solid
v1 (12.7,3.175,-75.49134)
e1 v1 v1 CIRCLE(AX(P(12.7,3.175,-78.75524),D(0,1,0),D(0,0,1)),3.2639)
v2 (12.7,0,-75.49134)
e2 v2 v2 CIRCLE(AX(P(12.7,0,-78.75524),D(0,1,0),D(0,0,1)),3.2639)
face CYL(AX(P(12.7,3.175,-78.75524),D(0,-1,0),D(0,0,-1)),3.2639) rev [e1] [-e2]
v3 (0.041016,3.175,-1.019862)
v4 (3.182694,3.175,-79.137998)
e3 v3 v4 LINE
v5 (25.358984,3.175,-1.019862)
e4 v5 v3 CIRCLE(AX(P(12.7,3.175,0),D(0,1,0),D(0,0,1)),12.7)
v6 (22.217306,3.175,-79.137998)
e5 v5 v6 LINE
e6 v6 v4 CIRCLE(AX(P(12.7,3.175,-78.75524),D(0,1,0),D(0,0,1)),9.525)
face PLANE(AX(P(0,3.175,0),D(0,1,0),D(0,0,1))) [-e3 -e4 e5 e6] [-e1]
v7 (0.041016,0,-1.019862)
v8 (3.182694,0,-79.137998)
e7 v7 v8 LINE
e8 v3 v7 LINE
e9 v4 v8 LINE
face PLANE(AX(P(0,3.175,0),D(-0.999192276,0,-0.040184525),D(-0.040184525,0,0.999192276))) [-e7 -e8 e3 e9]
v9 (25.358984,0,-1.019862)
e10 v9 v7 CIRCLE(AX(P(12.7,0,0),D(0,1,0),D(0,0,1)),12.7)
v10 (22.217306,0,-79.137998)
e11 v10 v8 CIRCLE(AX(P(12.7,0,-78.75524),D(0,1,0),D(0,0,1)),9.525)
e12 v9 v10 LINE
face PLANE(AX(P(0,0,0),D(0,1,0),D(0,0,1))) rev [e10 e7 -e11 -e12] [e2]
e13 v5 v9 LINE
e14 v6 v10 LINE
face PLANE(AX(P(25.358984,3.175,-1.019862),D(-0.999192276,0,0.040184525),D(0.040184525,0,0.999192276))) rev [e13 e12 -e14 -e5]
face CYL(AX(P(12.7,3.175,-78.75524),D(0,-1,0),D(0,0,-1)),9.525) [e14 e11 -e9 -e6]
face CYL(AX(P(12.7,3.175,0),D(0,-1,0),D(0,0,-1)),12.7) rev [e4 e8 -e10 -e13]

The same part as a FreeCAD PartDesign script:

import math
import FreeCAD as App
import Part
import Sketcher
Q = App.Units.Quantity

doc = App.newDocument("Part")
body = doc.addObject("PartDesign::Body", "Body")

sketch1 = body.newObject("Sketcher::SketchObject", "Sketch")
sketch1.AttachmentSupport = (doc.getObject("XZ_Plane"), [""])
sketch1.MapMode = "FlatFace"
sketch1.addGeometry([
    Part.LineSegment(App.Vector(3.182694, -79.137998, 0), App.Vector(0.041016, -1.019862, 0)),
    Part.ArcOfCircle(Part.Circle(App.Vector(12.7, 0, 0), App.Vector(0, 0, 1), 12.7), math.radians(-175.393952), math.radians(-4.606048)),
    Part.LineSegment(App.Vector(25.358984, -1.019862, 0), App.Vector(22.217306, -79.137998, 0)),
    Part.ArcOfCircle(Part.Circle(App.Vector(12.7, -78.75524, 0), App.Vector(0, 0, 1), 9.525), math.radians(-177.696976), math.radians(-2.303024)),
    Part.Circle(App.Vector(12.7, -78.75524, 0), App.Vector(0, 0, 1), 3.2639),
], False)
sketch1.addConstraint([
    Sketcher.Constraint("Coincident", 0, 2, 1, 1),
    Sketcher.Constraint("Coincident", 1, 2, 2, 1),
    Sketcher.Constraint("Tangent", 2, 2, 3, 2),
    Sketcher.Constraint("Tangent", 3, 1, 0, 1),
    Sketcher.Constraint("Coincident", 4, 3, 3, 3),
    Sketcher.Constraint("PointOnObject", 1, 3, -1),
    Sketcher.Constraint("Horizontal", 0, 2, 1, 2),
    Sketcher.Constraint("Horizontal", 2, 2, 3, 1),
    Sketcher.Constraint("Radius", 1, Q("0.5 in")),
    Sketcher.Constraint("Diameter", 4, Q("0.257 in")),
    Sketcher.Constraint("Radius", 3, Q("0.375 in")),
    Sketcher.Constraint("DistanceX", -1, 1, 1, 3, Q("0.5 in")),
    Sketcher.Constraint("DistanceY", 3, 3, -1, 1, Q("3.1006 in")),
    Sketcher.Constraint("DistanceX", 0, 2, 1, 2, 25.317968),
])
pad1 = body.newObject("PartDesign::Pad", "Pad")
pad1.Profile = sketch1
pad1.Length = Q("0.125 in")
pad1.Reversed = True

doc.recompute()
